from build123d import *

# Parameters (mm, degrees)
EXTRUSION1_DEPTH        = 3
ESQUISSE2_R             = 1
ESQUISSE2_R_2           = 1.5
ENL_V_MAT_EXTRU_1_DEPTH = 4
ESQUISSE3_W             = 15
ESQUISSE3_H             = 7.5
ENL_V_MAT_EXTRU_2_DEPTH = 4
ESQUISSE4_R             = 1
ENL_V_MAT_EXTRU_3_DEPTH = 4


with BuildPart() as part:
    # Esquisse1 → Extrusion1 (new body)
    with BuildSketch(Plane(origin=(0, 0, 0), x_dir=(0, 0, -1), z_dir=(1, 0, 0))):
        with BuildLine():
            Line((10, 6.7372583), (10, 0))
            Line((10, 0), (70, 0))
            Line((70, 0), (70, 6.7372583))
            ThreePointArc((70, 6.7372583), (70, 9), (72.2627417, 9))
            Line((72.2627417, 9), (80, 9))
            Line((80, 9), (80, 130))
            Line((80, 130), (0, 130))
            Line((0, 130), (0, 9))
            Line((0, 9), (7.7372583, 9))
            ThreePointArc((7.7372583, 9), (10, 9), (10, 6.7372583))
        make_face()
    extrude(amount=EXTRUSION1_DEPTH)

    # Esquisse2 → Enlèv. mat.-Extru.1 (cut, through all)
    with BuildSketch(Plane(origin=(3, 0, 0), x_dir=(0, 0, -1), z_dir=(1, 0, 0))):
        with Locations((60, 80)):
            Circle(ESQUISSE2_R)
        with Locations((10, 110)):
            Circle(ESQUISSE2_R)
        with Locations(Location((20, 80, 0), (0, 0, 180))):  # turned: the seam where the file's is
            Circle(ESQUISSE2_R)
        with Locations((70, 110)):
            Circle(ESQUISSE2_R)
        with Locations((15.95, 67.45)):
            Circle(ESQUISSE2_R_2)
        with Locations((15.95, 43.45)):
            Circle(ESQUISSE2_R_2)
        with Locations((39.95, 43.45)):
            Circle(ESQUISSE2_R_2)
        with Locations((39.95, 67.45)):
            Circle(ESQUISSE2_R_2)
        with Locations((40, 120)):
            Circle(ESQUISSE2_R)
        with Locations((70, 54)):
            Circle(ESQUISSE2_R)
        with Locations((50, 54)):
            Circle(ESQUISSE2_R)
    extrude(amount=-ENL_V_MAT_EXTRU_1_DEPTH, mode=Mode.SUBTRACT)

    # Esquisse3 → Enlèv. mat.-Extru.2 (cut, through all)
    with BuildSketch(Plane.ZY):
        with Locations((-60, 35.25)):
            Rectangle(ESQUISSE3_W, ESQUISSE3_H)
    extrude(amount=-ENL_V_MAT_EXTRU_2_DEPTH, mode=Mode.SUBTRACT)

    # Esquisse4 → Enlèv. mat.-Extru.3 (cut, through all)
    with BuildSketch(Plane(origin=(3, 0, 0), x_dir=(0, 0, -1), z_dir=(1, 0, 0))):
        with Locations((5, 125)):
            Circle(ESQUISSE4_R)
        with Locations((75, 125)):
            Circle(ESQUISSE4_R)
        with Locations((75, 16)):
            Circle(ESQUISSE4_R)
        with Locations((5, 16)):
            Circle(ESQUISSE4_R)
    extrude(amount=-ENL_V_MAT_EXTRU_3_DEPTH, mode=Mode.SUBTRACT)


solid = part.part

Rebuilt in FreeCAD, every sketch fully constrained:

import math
import FreeCAD as App
import Part
import Sketcher

V = App.Vector


def add_polygon(sketch, points):
    """Adds a closed chain of lines whose ends are joined by coincident constraints."""
    first, n = sketch.GeometryCount, len(points)
    for a, b in zip(points, points[1:] + points[:1]):
        sketch.addGeometry(Part.LineSegment(App.Vector(*a, 0), App.Vector(*b, 0)), False)
    for i in range(n):
        sketch.addConstraint(Sketcher.Constraint("Coincident", first + i, 2, first + (i + 1) % n, 1))

doc = App.newDocument("Part")
body = doc.addObject("PartDesign::Body", "Body")

# Sketch on YZ plane
sketch1 = body.newObject("Sketcher::SketchObject", "Sketch")
sketch1.AttachmentSupport = (doc.getObject("YZ_Plane"), [""])
sketch1.MapMode = "FlatFace"
sketch1.addGeometry([
    Part.LineSegment(V(6.737258, -10, 0), V(0, -10, 0)),  # 0
    Part.LineSegment(V(0, -10, 0), V(0, -70, 0)),  # 1
    Part.LineSegment(V(0, -70, 0), V(6.737258, -70, 0)),  # 2
    Part.ArcOfCircle(Part.Circle(V(7.868629, -71.131371, 0), V(0, 0, 1), 1.6), math.radians(-45), math.radians(135)),  # 3
    Part.LineSegment(V(9, -72.262742, 0), V(9, -80, 0)),  # 4
    Part.LineSegment(V(9, -80, 0), V(130, -80, 0)),  # 5
    Part.LineSegment(V(130, -80, 0), V(130, 0, 0)),  # 6
    Part.LineSegment(V(130, 0, 0), V(9, 0, 0)),  # 7
    Part.LineSegment(V(9, 0, 0), V(9, -7.737258, 0)),  # 8
    Part.ArcOfCircle(Part.Circle(V(7.868629, -8.868629, 0), V(0, 0, 1), 1.6), math.radians(-135), math.radians(45)),  # 9
], False)
sketch1.addConstraint([
    Sketcher.Constraint("Coincident", 0, 2, 1, 1),
    Sketcher.Constraint("Coincident", 1, 2, 2, 1),
    Sketcher.Constraint("Coincident", 2, 2, 3, 2),
    Sketcher.Constraint("Coincident", 3, 1, 4, 1),
    Sketcher.Constraint("Coincident", 4, 2, 5, 1),
    Sketcher.Constraint("Coincident", 5, 2, 6, 1),
    Sketcher.Constraint("Coincident", 6, 2, 7, 1),
    Sketcher.Constraint("Coincident", 7, 2, 8, 1),
    Sketcher.Constraint("Coincident", 8, 2, 9, 2),
    Sketcher.Constraint("Coincident", 9, 1, 0, 1),
    Sketcher.Constraint("Horizontal", 0),
    Sketcher.Constraint("Vertical", 1),
    Sketcher.Constraint("Horizontal", 2),
    Sketcher.Constraint("Vertical", 4),
    Sketcher.Constraint("Horizontal", 5),
    Sketcher.Constraint("Vertical", 6),
    Sketcher.Constraint("Horizontal", 7),
    Sketcher.Constraint("Vertical", 8),
    Sketcher.Constraint("Equal", 3, 9),
    Sketcher.Constraint("PointOnObject", 0, 2, -2),
    Sketcher.Constraint("PointOnObject", 6, 2, -1),
    Sketcher.Constraint("Vertical", 3, 3, 9, 3),
    Sketcher.Constraint("Vertical", 4, 2, 7, 2),
    Sketcher.Constraint("Vertical", 2, 2, 9, 1),
    Sketcher.Constraint("Equal", 4, 8),
    Sketcher.Constraint("Radius", 3, 1.6),
    Sketcher.Constraint("DistanceX", 5, 1, 5, 2, 121.0),
    Sketcher.Constraint("DistanceY", 1, 2, 1, 1, 60.0),
    Sketcher.Constraint("DistanceY", 6, 1, 6, 2, 80.0),
    Sketcher.Constraint("DistanceX", -1, 1, 3, 1, 9.0),
    Sketcher.Constraint("DistanceX", 0, 2, 0, 1, 6.737258),
    Sketcher.Constraint("DistanceX", -1, 1, 3, 3, 7.868629),
])
pad1 = body.newObject("PartDesign::Pad", "Pad")
pad1.Profile = sketch1
pad1.Length = 3

# Sketch on YZ plane
sketch2 = body.newObject("Sketcher::SketchObject", "Sketch001")
sketch2.AttachmentSupport = (doc.getObject("YZ_Plane"), [""])
sketch2.MapMode = "FlatFace"
sketch2.AttachmentOffset = App.Placement(V(0, 0, 3), App.Rotation())
sketch2.addGeometry([
    Part.Circle(V(80, -60, 0), V(0, 0, 1), 1),  # 0
    Part.Circle(V(110, -10, 0), V(0, 0, 1), 1),  # 1
    Part.Circle(V(80, -20, 0), V(0, 0, 1), 1),  # 2
    Part.Circle(V(110, -70, 0), V(0, 0, 1), 1),  # 3
    Part.Circle(V(67.45, -15.95, 0), V(0, 0, 1), 1.5),  # 4
    Part.Circle(V(43.45, -15.95, 0), V(0, 0, 1), 1.5),  # 5
    Part.Circle(V(43.45, -39.95, 0), V(0, 0, 1), 1.5),  # 6
    Part.Circle(V(67.45, -39.95, 0), V(0, 0, 1), 1.5),  # 7
    Part.Circle(V(120, -40, 0), V(0, 0, 1), 1),  # 8
    Part.Circle(V(54, -70, 0), V(0, 0, 1), 1),  # 9
    Part.Circle(V(54, -50, 0), V(0, 0, 1), 1),  # 10
], False)
sketch2.addConstraint([
    Sketcher.Constraint("Equal", 0, 1),
    Sketcher.Constraint("Equal", 1, 2),
    Sketcher.Constraint("Equal", 2, 3),
    Sketcher.Constraint("Equal", 4, 5),
    Sketcher.Constraint("Equal", 5, 6),
    Sketcher.Constraint("Equal", 6, 7),
    Sketcher.Constraint("Equal", 3, 8),
    Sketcher.Constraint("Equal", 8, 9),
    Sketcher.Constraint("Equal", 9, 10),
    Sketcher.Constraint("Horizontal", 4, 3, 5, 3),
    Sketcher.Constraint("Horizontal", 6, 3, 7, 3),
    Sketcher.Constraint("Horizontal", 3, 3, 9, 3),
    Sketcher.Constraint("Vertical", 0, 3, 2, 3),
    Sketcher.Constraint("Vertical", 1, 3, 3, 3),
    Sketcher.Constraint("Vertical", 5, 3, 6, 3),
    Sketcher.Constraint("Vertical", 4, 3, 7, 3),
    Sketcher.Constraint("Vertical", 9, 3, 10, 3),
    Sketcher.Constraint("Diameter", 0, 2.0),
    Sketcher.Constraint("Diameter", 4, 3.0),
    Sketcher.Constraint("DistanceX", -1, 1, 0, 3, 80.0),
    Sketcher.Constraint("DistanceY", 0, 3, -1, 1, 60.0),
    Sketcher.Constraint("DistanceX", -1, 1, 1, 3, 110.0),
    Sketcher.Constraint("DistanceY", 1, 3, -1, 1, 10.0),
    Sketcher.Constraint("DistanceY", 2, 3, -1, 1, 20.0),
    Sketcher.Constraint("DistanceY", 3, 3, -1, 1, 70.0),
    Sketcher.Constraint("DistanceX", -1, 1, 8, 3, 120.0),
    Sketcher.Constraint("DistanceY", 8, 3, -1, 1, 40.0),
    Sketcher.Constraint("DistanceX", -1, 1, 9, 3, 54.0),
    Sketcher.Constraint("DistanceY", 10, 3, -1, 1, 50.0),
    Sketcher.Constraint("DistanceX", 5, 3, 4, 3, 24.0),
    Sketcher.Constraint("DistanceY", 6, 3, 5, 3, 24.0),
    Sketcher.Constraint("DistanceX", -1, 1, 4, 3, 67.45),
    Sketcher.Constraint("DistanceY", 4, 3, -1, 1, 15.95),
])
pocket1 = body.newObject("PartDesign::Pocket", "Pocket")
pocket1.Profile = sketch2
pocket1.Type = "ThroughAll"

# Sketch on YZ plane
sketch3 = body.newObject("Sketcher::SketchObject", "Sketch002")
sketch3.AttachmentSupport = (doc.getObject("YZ_Plane"), [""])
sketch3.MapMode = "FlatFace"
add_polygon(sketch3, [(39, -67.5), (31.5, -67.5), (31.5, -52.5), (39, -52.5)])  # lines 0-3
sketch3.addConstraint([
    Sketcher.Constraint("Horizontal", 0),
    Sketcher.Constraint("Vertical", 1),
    Sketcher.Constraint("Horizontal", 2),
    Sketcher.Constraint("Vertical", 3),
    Sketcher.Constraint("DistanceY", 1, 1, 1, 2, 15.0),
    Sketcher.Constraint("DistanceX", 0, 2, 0, 1, 7.5),
    Sketcher.Constraint("DistanceX", -1, 1, 2, 2, 39.0),
    Sketcher.Constraint("DistanceY", 0, 2, -1, 1, 67.5),
])
pocket2 = body.newObject("PartDesign::Pocket", "Pocket001")
pocket2.Profile = sketch3
pocket2.Type = "ThroughAll"
pocket2.Reversed = True

# Sketch on YZ plane
sketch4 = body.newObject("Sketcher::SketchObject", "Sketch003")
sketch4.AttachmentSupport = (doc.getObject("YZ_Plane"), [""])
sketch4.MapMode = "FlatFace"
sketch4.AttachmentOffset = App.Placement(V(0, 0, 3), App.Rotation())
sketch4.addGeometry([
    Part.Circle(V(125, -5, 0), V(0, 0, 1), 1),
    Part.Circle(V(125, -75, 0), V(0, 0, 1), 1),
    Part.Circle(V(16, -75, 0), V(0, 0, 1), 1),
    Part.Circle(V(16, -5, 0), V(0, 0, 1), 1),
], False)
sketch4.addConstraint([
    Sketcher.Constraint("Equal", 0, 1),
    Sketcher.Constraint("Equal", 1, 2),
    Sketcher.Constraint("Equal", 2, 3),
    Sketcher.Constraint("Horizontal", 1, 3, 2, 3),
    Sketcher.Constraint("Horizontal", 0, 3, 3, 3),
    Sketcher.Constraint("Vertical", 0, 3, 1, 3),
    Sketcher.Constraint("Vertical", 2, 3, 3, 3),
    Sketcher.Constraint("Diameter", 0, 2.0),
    Sketcher.Constraint("DistanceX", -1, 1, 0, 3, 125.0),
    Sketcher.Constraint("DistanceY", 0, 3, -1, 1, 5.0),
    Sketcher.Constraint("DistanceY", 1, 3, -1, 1, 75.0),
    Sketcher.Constraint("DistanceX", -1, 1, 2, 3, 16.0),
])
pocket3 = body.newObject("PartDesign::Pocket", "Pocket002")
pocket3.Profile = sketch4
pocket3.Type = "ThroughAll"

doc.recompute()
